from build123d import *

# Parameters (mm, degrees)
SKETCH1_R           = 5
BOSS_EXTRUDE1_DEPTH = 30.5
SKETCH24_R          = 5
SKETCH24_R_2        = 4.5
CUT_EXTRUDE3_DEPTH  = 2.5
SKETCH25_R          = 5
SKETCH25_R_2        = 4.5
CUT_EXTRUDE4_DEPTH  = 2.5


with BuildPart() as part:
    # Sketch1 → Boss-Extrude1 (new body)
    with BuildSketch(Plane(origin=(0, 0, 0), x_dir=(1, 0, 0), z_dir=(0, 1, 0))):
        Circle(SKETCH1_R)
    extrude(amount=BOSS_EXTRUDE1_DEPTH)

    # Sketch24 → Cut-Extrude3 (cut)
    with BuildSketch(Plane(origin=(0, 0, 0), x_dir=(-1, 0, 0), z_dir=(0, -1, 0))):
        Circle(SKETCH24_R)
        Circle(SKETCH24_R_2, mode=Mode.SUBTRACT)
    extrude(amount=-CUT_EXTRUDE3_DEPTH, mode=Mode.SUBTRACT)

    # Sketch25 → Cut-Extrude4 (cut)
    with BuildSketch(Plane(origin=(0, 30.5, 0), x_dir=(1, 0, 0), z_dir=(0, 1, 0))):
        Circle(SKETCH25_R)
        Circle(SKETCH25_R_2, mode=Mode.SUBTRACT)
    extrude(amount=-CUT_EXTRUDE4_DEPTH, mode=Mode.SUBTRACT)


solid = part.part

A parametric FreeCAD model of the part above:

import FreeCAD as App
import Part
import Sketcher
from FreeCAD import Vector
Q = App.Units.Quantity

doc = App.newDocument("Part")
body = doc.addObject("PartDesign::Body", "Body")

# Sketch on XZ plane
sketch1 = doc.addObject("Sketcher::SketchObject", "Sketch")
body.addObject(sketch1)
sketch1.AttachmentSupport = (doc.XZ_Plane, [""])
sketch1.MapMode = "FlatFace"
sketch1.addGeometry(Part.Circle(Vector(0, 0, 0), Vector(0, 0, 1), 5), False)
sketch1.addConstraint([
    Sketcher.Constraint("Coincident", 0, 3, -1, 1),
    Sketcher.Constraint("Diameter", 0, Q("10 mm")),
])
pad1 = doc.addObject("PartDesign::Pad", "Pad")
body.addObject(pad1)
pad1.Profile = sketch1
pad1.Length = 30.5
pad1.Reversed = True

# Sketch on XZ plane
sketch2 = doc.addObject("Sketcher::SketchObject", "Sketch001")
body.addObject(sketch2)
sketch2.AttachmentSupport = (doc.XZ_Plane, [""])
sketch2.MapMode = "FlatFace"
sketch2.addGeometry([
    Part.Circle(Vector(0, 0, 0), Vector(0, 0, 1), 5),
    Part.Circle(Vector(0, 0, 0), Vector(0, 0, 1), 4.5),
], False)
sketch2.addConstraint([
    Sketcher.Constraint("Coincident", 0, 3, -1, 1),
    Sketcher.Constraint("Coincident", 1, 3, -1, 1),
    Sketcher.Constraint("Diameter", 0, Q("10 mm")),
    Sketcher.Constraint("Diameter", 1, Q("9 mm")),
])
pocket1 = doc.addObject("PartDesign::Pocket", "Pocket")
body.addObject(pocket1)
pocket1.Profile = sketch2
pocket1.Length = 2.5

# Sketch on XZ plane
sketch3 = doc.addObject("Sketcher::SketchObject", "Sketch002")
body.addObject(sketch3)
sketch3.AttachmentSupport = (doc.XZ_Plane, [""])
sketch3.MapMode = "FlatFace"
sketch3.AttachmentOffset = App.Placement(Vector(0, 0, -30.5), App.Rotation())
sketch3.addGeometry([
    Part.Circle(Vector(0, 0, 0), Vector(0, 0, 1), 5),
    Part.Circle(Vector(0, 0, 0), Vector(0, 0, 1), 4.5),
], False)
sketch3.addConstraint([
    Sketcher.Constraint("Coincident", 0, 3, -1, 1),
    Sketcher.Constraint("Coincident", 1, 3, -1, 1),
    Sketcher.Constraint("Diameter", 0, Q("10 mm")),
    Sketcher.Constraint("Diameter", 1, Q("9 mm")),
])
pocket2 = doc.addObject("PartDesign::Pocket", "Pocket001")
body.addObject(pocket2)
pocket2.Profile = sketch3
pocket2.Length = 2.5
pocket2.Reversed = True

doc.recompute()
